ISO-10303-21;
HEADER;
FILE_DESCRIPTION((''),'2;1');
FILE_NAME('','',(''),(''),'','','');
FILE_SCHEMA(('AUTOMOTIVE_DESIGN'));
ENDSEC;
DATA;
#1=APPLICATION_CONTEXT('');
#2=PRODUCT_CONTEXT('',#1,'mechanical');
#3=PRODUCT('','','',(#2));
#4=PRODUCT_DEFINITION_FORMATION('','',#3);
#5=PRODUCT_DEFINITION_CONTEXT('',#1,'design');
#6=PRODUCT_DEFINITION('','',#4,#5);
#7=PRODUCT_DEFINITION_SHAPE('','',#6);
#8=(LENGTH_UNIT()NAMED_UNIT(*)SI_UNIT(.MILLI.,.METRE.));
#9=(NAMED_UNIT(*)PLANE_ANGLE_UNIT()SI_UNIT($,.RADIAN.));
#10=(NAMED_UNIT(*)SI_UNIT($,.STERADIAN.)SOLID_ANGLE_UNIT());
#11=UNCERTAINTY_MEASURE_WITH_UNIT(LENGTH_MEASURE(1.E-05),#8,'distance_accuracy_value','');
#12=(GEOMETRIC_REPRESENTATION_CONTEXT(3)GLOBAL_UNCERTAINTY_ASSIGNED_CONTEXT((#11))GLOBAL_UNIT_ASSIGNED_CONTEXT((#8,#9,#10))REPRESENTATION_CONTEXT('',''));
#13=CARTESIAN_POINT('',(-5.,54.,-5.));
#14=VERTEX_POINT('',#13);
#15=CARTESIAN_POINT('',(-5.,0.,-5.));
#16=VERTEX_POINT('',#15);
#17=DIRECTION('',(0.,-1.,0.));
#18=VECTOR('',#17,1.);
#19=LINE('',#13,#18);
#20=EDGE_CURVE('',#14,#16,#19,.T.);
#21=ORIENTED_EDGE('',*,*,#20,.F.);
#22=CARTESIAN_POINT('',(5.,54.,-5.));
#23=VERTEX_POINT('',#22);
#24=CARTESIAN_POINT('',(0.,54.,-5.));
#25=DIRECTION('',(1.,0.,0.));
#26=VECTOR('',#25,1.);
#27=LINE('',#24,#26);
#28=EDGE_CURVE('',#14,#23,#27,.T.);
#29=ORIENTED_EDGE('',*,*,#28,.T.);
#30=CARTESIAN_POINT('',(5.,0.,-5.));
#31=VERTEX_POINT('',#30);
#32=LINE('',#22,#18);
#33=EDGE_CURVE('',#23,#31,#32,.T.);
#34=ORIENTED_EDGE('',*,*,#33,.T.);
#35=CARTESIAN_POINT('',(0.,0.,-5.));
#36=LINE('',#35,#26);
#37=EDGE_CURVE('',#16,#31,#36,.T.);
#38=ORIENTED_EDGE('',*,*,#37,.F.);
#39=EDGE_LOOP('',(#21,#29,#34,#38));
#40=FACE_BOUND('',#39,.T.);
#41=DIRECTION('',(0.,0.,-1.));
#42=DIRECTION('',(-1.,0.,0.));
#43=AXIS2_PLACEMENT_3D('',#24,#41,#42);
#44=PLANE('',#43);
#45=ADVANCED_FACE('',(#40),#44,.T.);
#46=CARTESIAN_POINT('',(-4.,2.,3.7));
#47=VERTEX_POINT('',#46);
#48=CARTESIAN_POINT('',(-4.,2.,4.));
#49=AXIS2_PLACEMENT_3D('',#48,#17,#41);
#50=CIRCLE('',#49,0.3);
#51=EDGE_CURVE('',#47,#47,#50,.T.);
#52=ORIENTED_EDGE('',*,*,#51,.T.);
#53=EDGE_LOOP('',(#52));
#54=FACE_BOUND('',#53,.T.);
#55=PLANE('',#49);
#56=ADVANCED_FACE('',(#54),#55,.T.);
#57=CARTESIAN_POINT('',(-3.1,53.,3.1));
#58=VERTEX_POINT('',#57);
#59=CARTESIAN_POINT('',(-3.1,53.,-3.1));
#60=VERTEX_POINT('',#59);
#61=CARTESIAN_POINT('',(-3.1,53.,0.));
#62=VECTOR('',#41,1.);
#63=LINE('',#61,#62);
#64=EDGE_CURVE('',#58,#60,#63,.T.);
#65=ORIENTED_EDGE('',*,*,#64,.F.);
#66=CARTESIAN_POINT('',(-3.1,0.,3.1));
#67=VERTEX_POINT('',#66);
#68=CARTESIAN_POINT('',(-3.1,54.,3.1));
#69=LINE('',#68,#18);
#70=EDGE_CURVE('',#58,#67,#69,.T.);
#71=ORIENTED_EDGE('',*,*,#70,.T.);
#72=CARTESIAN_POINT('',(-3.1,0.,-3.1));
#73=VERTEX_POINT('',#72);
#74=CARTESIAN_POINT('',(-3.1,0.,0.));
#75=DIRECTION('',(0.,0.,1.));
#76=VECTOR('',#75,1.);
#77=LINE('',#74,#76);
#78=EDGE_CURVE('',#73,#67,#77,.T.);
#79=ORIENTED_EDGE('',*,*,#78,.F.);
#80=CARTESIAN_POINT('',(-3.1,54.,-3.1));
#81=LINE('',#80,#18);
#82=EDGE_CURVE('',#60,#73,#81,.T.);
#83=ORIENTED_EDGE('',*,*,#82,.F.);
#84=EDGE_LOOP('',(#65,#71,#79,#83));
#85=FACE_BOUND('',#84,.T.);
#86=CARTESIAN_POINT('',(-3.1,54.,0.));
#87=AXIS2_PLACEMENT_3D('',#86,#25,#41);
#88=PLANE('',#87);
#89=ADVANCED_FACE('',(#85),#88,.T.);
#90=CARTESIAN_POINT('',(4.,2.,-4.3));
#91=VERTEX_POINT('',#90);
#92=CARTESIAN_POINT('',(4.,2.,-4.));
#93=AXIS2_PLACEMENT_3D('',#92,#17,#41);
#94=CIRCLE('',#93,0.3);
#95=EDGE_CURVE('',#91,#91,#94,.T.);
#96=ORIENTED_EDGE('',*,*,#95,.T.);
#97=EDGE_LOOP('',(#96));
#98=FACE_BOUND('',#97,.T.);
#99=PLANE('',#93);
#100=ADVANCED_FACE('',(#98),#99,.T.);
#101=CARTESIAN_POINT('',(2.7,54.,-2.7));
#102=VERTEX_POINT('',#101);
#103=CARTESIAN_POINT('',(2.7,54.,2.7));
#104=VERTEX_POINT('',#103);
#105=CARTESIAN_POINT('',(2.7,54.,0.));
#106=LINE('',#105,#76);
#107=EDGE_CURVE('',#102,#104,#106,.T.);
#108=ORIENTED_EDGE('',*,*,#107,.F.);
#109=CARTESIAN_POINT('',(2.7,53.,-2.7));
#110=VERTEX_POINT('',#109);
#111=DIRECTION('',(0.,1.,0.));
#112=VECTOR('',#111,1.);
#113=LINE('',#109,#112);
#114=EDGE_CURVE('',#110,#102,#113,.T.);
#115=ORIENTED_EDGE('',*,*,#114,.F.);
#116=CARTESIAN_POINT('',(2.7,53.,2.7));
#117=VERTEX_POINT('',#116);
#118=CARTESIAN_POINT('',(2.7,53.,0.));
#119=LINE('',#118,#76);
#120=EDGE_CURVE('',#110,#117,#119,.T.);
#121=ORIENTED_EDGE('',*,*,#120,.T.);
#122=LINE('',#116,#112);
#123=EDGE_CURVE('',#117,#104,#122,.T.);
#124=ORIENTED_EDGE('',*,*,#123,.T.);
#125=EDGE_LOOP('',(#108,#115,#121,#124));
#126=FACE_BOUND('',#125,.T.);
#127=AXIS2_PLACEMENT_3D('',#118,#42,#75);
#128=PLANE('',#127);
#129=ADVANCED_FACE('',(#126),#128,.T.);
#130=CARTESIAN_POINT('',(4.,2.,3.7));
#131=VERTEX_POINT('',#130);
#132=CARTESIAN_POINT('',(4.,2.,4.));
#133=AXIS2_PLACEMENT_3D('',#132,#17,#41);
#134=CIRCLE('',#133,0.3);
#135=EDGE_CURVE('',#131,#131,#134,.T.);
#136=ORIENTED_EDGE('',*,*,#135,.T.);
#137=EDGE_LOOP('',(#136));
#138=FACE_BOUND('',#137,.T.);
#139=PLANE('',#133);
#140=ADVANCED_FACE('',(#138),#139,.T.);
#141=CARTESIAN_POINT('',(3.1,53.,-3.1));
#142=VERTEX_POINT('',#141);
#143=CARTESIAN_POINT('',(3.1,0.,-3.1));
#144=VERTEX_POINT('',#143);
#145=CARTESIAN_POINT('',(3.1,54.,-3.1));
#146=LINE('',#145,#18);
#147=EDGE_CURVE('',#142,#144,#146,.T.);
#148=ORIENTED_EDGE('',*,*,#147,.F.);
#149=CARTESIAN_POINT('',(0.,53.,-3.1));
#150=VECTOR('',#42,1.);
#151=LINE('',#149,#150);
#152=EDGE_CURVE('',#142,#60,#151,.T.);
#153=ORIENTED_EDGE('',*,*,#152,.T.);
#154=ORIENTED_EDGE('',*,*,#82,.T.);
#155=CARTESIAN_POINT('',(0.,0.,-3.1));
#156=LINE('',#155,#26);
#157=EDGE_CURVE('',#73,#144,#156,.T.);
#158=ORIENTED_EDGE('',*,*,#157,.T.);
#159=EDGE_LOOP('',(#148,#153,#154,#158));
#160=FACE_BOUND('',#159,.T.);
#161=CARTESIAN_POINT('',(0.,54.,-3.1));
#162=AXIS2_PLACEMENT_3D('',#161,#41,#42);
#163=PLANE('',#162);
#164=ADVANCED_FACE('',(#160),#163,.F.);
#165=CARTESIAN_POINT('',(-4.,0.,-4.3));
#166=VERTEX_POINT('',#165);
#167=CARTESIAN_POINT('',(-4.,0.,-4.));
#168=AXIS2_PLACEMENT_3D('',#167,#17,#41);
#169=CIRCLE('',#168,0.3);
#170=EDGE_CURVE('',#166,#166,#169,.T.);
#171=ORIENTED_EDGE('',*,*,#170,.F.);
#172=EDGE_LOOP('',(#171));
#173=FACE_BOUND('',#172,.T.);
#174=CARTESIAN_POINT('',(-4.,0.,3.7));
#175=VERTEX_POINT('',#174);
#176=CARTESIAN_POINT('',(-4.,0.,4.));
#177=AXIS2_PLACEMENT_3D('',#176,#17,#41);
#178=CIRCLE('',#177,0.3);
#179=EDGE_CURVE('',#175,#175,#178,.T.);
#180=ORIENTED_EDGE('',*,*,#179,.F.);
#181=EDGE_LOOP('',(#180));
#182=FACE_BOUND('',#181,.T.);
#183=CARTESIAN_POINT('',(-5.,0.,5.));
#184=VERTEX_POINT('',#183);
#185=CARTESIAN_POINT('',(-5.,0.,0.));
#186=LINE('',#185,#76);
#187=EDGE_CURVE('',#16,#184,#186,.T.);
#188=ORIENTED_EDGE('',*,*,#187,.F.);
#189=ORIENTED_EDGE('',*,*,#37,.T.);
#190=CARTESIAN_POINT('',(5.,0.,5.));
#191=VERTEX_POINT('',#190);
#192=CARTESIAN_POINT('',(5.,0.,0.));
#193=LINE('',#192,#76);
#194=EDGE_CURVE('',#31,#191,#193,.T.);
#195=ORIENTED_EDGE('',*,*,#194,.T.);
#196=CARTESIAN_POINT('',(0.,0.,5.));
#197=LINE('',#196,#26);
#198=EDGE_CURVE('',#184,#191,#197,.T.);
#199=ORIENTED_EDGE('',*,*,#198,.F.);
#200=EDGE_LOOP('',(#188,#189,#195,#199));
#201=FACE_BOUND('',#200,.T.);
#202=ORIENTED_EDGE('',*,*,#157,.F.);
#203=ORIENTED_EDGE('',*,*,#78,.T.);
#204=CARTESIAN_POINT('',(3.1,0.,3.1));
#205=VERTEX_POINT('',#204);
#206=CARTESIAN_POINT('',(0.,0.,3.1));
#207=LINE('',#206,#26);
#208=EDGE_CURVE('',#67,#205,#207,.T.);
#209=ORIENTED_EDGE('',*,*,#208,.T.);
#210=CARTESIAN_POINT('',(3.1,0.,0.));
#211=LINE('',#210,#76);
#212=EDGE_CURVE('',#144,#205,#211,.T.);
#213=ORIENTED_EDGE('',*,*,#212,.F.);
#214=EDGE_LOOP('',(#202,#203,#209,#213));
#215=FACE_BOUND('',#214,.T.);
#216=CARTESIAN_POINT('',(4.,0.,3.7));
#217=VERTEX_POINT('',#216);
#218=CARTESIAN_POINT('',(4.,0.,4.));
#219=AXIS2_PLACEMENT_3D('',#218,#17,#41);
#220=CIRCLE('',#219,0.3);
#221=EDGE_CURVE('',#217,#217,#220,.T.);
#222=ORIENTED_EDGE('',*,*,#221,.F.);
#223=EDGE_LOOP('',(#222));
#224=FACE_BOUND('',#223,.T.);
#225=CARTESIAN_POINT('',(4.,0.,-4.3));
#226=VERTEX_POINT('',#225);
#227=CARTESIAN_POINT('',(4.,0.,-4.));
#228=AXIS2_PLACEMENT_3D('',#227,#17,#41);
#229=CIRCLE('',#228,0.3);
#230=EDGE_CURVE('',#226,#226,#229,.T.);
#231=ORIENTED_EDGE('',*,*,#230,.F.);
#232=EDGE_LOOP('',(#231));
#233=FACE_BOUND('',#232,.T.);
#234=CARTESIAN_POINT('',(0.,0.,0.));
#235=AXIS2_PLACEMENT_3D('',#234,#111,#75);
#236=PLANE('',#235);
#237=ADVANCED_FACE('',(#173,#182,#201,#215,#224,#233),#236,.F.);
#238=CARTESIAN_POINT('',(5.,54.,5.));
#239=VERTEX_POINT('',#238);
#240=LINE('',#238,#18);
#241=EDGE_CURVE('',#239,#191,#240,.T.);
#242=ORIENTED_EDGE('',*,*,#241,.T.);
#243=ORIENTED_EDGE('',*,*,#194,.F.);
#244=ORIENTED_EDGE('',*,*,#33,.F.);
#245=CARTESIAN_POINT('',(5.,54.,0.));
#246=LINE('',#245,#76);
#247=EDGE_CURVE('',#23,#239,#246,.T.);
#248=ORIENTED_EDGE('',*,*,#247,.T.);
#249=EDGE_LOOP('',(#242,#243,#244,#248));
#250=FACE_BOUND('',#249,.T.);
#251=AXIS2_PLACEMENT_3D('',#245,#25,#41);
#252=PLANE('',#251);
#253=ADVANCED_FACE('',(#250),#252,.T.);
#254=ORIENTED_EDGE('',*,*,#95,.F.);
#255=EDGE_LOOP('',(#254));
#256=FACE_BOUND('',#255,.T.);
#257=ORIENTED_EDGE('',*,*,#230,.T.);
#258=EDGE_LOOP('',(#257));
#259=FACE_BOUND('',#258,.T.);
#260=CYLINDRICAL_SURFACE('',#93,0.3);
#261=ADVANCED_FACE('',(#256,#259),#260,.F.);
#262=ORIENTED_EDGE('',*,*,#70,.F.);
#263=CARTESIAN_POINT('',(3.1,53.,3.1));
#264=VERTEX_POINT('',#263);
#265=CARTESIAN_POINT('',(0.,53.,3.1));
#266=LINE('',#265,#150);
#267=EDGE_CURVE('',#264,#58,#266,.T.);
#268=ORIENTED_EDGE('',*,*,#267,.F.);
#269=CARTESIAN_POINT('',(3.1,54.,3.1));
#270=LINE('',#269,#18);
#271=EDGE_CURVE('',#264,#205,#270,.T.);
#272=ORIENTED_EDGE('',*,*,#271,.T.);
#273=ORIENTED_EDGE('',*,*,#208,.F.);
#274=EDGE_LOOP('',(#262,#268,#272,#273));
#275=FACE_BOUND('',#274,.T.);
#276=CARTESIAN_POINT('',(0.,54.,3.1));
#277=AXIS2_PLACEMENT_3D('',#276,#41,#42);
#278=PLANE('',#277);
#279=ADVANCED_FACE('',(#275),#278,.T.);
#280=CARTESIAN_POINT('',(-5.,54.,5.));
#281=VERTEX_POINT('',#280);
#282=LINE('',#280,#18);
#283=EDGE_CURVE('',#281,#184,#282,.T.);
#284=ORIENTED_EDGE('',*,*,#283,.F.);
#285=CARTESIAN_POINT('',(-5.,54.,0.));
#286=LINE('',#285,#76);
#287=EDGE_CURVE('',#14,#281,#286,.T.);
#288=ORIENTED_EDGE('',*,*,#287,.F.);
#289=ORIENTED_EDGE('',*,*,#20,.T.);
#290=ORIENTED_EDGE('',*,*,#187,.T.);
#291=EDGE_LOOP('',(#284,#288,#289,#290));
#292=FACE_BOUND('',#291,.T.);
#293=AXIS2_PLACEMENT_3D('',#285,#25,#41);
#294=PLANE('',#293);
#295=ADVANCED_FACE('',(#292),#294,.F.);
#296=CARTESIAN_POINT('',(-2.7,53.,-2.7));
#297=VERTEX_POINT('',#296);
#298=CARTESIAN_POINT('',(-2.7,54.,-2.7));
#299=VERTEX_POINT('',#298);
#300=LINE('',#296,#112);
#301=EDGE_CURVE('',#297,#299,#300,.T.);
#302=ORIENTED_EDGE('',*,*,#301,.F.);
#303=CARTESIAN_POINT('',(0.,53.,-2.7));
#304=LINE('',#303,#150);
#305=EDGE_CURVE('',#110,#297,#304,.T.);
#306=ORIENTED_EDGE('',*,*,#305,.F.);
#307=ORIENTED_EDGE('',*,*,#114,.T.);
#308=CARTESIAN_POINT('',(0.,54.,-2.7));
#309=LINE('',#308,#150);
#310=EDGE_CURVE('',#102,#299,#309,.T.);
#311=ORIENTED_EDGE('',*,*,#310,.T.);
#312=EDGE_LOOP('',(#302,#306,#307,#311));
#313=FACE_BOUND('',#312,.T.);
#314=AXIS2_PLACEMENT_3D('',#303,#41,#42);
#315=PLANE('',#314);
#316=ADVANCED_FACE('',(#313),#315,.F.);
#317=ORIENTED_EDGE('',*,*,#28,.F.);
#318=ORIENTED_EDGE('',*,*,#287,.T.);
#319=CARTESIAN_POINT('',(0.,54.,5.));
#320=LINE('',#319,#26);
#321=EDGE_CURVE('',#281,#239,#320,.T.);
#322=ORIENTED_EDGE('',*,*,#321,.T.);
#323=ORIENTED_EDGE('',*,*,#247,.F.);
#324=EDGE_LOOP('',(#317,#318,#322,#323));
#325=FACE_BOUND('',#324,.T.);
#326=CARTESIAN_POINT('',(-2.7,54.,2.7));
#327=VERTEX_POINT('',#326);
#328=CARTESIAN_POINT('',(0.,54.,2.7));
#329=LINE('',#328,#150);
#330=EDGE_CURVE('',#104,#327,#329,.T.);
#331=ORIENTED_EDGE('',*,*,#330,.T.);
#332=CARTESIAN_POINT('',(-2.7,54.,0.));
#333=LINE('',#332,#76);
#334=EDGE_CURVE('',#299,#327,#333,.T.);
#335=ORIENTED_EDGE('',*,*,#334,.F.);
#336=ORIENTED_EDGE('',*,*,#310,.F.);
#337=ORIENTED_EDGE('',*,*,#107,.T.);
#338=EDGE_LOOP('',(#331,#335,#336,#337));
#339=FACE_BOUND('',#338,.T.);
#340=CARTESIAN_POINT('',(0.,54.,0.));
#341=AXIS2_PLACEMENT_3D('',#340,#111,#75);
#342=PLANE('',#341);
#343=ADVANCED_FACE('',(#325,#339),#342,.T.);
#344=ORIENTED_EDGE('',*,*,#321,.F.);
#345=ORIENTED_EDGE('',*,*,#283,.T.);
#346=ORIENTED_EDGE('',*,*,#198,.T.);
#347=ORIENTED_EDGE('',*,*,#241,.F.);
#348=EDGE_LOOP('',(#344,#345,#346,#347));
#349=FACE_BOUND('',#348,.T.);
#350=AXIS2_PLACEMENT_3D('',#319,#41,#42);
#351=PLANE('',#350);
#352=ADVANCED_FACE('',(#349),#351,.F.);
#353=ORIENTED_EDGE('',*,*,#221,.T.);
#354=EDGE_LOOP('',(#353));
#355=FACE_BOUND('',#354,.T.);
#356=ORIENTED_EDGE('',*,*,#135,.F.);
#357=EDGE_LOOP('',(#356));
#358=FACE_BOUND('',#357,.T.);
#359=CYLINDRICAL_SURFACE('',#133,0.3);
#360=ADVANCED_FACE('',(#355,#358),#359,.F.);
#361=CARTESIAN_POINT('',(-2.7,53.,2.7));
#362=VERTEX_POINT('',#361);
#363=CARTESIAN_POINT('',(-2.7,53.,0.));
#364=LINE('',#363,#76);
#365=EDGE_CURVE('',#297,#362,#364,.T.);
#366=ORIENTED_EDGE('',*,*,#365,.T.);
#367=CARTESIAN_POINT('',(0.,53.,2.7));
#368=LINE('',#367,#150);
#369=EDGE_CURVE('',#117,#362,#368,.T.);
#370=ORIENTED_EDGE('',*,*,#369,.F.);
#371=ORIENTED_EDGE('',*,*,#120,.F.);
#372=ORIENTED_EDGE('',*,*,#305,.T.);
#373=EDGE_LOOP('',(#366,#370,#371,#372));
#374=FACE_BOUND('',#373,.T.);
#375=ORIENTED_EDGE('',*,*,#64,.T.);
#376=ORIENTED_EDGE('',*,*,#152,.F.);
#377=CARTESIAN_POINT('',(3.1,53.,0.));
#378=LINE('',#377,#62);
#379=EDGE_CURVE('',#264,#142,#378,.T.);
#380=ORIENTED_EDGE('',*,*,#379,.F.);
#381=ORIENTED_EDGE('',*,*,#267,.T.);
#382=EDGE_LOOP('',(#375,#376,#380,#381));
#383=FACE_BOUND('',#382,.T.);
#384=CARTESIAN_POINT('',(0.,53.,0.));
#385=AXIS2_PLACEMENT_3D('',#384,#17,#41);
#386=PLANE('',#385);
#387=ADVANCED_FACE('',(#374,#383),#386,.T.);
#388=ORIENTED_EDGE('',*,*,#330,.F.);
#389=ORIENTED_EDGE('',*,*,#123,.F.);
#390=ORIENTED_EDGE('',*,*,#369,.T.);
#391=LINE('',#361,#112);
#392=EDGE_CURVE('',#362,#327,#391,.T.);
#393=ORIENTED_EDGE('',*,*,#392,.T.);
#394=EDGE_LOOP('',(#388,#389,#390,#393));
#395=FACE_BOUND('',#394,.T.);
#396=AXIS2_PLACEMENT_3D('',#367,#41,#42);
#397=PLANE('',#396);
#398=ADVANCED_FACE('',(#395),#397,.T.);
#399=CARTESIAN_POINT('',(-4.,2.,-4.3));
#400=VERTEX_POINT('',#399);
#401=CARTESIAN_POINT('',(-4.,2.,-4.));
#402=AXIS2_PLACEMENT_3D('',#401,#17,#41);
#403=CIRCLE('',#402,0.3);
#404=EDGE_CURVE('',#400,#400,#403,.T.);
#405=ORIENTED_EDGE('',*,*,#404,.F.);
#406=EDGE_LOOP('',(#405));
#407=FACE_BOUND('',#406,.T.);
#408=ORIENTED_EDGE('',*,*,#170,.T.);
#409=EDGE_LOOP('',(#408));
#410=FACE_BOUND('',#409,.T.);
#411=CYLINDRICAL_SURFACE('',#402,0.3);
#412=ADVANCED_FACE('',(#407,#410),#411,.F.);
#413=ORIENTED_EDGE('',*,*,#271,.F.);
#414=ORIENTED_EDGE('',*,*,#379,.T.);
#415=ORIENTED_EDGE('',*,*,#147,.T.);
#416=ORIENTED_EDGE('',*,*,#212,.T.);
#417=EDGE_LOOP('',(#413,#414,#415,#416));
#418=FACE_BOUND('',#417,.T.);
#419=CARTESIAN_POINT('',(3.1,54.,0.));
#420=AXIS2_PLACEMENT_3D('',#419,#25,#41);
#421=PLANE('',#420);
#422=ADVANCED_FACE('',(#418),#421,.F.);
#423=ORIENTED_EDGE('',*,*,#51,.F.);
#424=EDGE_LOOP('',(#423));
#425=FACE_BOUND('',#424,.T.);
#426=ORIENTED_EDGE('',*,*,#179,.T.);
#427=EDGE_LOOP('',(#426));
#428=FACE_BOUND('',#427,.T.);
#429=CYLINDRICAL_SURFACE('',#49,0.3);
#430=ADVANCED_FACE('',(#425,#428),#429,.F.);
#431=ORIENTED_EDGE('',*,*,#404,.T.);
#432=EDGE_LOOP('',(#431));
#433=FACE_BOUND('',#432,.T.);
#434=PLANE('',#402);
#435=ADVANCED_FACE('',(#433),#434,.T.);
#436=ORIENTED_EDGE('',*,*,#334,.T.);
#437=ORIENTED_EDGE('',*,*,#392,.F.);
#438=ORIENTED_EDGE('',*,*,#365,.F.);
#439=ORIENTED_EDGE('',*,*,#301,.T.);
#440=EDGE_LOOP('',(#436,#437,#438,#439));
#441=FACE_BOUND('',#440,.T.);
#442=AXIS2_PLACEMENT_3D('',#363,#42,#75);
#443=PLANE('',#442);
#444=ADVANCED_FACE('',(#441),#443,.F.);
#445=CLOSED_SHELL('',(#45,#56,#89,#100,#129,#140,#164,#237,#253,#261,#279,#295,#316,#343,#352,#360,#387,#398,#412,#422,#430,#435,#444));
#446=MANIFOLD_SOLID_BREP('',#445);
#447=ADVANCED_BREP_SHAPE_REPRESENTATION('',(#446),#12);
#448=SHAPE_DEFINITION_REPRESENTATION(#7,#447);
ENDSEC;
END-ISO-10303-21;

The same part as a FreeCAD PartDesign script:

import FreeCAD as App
import Part
import Sketcher


def add_polygon(sketch, points):
    """Adds a closed chain of lines whose ends are joined by coincident constraints."""
    first, n = sketch.GeometryCount, len(points)
    for a, b in zip(points, points[1:] + points[:1]):
        sketch.addGeometry(Part.LineSegment(App.Vector(*a, 0), App.Vector(*b, 0)), False)
    for i in range(n):
        sketch.addConstraint(Sketcher.Constraint("Coincident", first + i, 2, first + (i + 1) % n, 1))

doc = App.newDocument("Part")
params = doc.addObject("Spreadsheet::Sheet", "Params")
for row, (alias, value) in enumerate([
    ("sketch1_width", "10 mm"),
    ("sketch1_width2", "6.2 mm"),
    ("pad1_length", "54 mm"),
    ("sketch2_width", "10 mm"),
    ("sketch2_width2", "5.4 mm"),
    ("pad2_length", "1 mm"),
    ("sketch3_diameter", "0.6 mm"),
    ("pocket1_length", "2 mm"),
], start=1):
    params.set(f"A{row}", alias)
    params.set(f"B{row}", "=" + value)
    params.setAlias(f"B{row}", alias)

body = doc.addObject("PartDesign::Body", "Body")

sketch1 = body.newObject("Sketcher::SketchObject", "Sketch")
sketch1.AttachmentSupport = (doc.getObject("XZ_Plane"), [""])
sketch1.MapMode = "FlatFace"
add_polygon(sketch1, [(-5, -5), (-5, 5), (5, 5), (5, -5)])
add_polygon(sketch1, [(3, 3), (-3, 3), (-3, -3), (3, -3)])
sketch1.addConstraint([
    Sketcher.Constraint("Vertical", 0),
    Sketcher.Constraint("Horizontal", 1),
    Sketcher.Constraint("Vertical", 2),
    Sketcher.Constraint("Horizontal", 3),
    Sketcher.Constraint("Horizontal", 4),
    Sketcher.Constraint("Vertical", 5),
    Sketcher.Constraint("Horizontal", 6),
    Sketcher.Constraint("Vertical", 7),
    Sketcher.Constraint("Symmetric", 0, 2, 2, 2, -1, 1),
    Sketcher.Constraint("Symmetric", 4, 2, 6, 2, -1, 1),
    Sketcher.Constraint("Equal", 3, 0),
    Sketcher.Constraint("Equal", 6, 5),
    Sketcher.Constraint("DistanceX", 1, 1, 1, 2, 10.0),
    Sketcher.Constraint("DistanceX", 4, 2, 4, 1, 6.2),
])
sketch1.setExpression("Constraints[20]", "Params.sketch1_width")
sketch1.setExpression("Constraints[21]", "Params.sketch1_width2")
pad1 = body.newObject("PartDesign::Pad", "Pad")
pad1.Profile = sketch1
pad1.setExpression("Length", "Params.pad1_length")
pad1.Reversed = True

sketch2 = body.newObject("Sketcher::SketchObject", "Sketch001")
sketch2.AttachmentSupport = (doc.getObject("XZ_Plane"), [""])
sketch2.MapMode = "FlatFace"
sketch2.AttachmentOffset = App.Placement(App.Vector(0, 0, -54), App.Rotation())
add_polygon(sketch2, [(-5, -5), (-5, 5), (5, 5), (5, -5)])
add_polygon(sketch2, [(3, 3), (-3, 3), (-3, -3), (3, -3)])
sketch2.addConstraint([
    Sketcher.Constraint("Vertical", 0),
    Sketcher.Constraint("Horizontal", 1),
    Sketcher.Constraint("Vertical", 2),
    Sketcher.Constraint("Horizontal", 3),
    Sketcher.Constraint("Horizontal", 4),
    Sketcher.Constraint("Vertical", 5),
    Sketcher.Constraint("Horizontal", 6),
    Sketcher.Constraint("Vertical", 7),
    Sketcher.Constraint("Symmetric", 0, 2, 2, 2, -1, 1),
    Sketcher.Constraint("Symmetric", 4, 2, 6, 2, -1, 1),
    Sketcher.Constraint("Equal", 3, 0),
    Sketcher.Constraint("Equal", 6, 5),
    Sketcher.Constraint("DistanceX", 1, 1, 1, 2, 10.0),
    Sketcher.Constraint("DistanceX", 4, 2, 4, 1, 5.4),
])
sketch2.setExpression("Constraints[20]", "Params.sketch2_width")
sketch2.setExpression("Constraints[21]", "Params.sketch2_width2")
pad2 = body.newObject("PartDesign::Pad", "Pad001")
pad2.Profile = sketch2
pad2.setExpression("Length", "Params.pad2_length")

sketch3 = body.newObject("Sketcher::SketchObject", "Sketch002")
sketch3.AttachmentSupport = (doc.getObject("XZ_Plane"), [""])
sketch3.MapMode = "FlatFace"
sketch3.addGeometry([
    Part.Circle(App.Vector(-4, 4, 0), App.Vector(0, 0, 1), 0.3),
    Part.Circle(App.Vector(4, -4, 0), App.Vector(0, 0, 1), 0.3),
    Part.Circle(App.Vector(4, 4, 0), App.Vector(0, 0, 1), 0.3),
    Part.Circle(App.Vector(-4, -4, 0), App.Vector(0, 0, 1), 0.3),
], False)
sketch3.addConstraint([
    Sketcher.Constraint("Equal", 0, 1),
    Sketcher.Constraint("Equal", 1, 2),
    Sketcher.Constraint("Equal", 2, 3),
    Sketcher.Constraint("Symmetric", 0, 3, 1, 3, -1, 1),
    Sketcher.Constraint("Symmetric", 2, 3, 3, 3, -1, 1),
    Sketcher.Constraint("Symmetric", 0, 3, 2, 3, -2),
    Sketcher.Constraint("Diameter", 0, 0.6),
    Sketcher.Constraint("DistanceX", 0, 3, -1, 1, 4.0),
    Sketcher.Constraint("DistanceY", -1, 1, 0, 3, 4.0),
])
sketch3.setExpression("Constraints[6]", "Params.sketch3_diameter")
pocket1 = body.newObject("PartDesign::Pocket", "Pocket")
pocket1.Profile = sketch3
pocket1.setExpression("Length", "Params.pocket1_length")

doc.recompute()
